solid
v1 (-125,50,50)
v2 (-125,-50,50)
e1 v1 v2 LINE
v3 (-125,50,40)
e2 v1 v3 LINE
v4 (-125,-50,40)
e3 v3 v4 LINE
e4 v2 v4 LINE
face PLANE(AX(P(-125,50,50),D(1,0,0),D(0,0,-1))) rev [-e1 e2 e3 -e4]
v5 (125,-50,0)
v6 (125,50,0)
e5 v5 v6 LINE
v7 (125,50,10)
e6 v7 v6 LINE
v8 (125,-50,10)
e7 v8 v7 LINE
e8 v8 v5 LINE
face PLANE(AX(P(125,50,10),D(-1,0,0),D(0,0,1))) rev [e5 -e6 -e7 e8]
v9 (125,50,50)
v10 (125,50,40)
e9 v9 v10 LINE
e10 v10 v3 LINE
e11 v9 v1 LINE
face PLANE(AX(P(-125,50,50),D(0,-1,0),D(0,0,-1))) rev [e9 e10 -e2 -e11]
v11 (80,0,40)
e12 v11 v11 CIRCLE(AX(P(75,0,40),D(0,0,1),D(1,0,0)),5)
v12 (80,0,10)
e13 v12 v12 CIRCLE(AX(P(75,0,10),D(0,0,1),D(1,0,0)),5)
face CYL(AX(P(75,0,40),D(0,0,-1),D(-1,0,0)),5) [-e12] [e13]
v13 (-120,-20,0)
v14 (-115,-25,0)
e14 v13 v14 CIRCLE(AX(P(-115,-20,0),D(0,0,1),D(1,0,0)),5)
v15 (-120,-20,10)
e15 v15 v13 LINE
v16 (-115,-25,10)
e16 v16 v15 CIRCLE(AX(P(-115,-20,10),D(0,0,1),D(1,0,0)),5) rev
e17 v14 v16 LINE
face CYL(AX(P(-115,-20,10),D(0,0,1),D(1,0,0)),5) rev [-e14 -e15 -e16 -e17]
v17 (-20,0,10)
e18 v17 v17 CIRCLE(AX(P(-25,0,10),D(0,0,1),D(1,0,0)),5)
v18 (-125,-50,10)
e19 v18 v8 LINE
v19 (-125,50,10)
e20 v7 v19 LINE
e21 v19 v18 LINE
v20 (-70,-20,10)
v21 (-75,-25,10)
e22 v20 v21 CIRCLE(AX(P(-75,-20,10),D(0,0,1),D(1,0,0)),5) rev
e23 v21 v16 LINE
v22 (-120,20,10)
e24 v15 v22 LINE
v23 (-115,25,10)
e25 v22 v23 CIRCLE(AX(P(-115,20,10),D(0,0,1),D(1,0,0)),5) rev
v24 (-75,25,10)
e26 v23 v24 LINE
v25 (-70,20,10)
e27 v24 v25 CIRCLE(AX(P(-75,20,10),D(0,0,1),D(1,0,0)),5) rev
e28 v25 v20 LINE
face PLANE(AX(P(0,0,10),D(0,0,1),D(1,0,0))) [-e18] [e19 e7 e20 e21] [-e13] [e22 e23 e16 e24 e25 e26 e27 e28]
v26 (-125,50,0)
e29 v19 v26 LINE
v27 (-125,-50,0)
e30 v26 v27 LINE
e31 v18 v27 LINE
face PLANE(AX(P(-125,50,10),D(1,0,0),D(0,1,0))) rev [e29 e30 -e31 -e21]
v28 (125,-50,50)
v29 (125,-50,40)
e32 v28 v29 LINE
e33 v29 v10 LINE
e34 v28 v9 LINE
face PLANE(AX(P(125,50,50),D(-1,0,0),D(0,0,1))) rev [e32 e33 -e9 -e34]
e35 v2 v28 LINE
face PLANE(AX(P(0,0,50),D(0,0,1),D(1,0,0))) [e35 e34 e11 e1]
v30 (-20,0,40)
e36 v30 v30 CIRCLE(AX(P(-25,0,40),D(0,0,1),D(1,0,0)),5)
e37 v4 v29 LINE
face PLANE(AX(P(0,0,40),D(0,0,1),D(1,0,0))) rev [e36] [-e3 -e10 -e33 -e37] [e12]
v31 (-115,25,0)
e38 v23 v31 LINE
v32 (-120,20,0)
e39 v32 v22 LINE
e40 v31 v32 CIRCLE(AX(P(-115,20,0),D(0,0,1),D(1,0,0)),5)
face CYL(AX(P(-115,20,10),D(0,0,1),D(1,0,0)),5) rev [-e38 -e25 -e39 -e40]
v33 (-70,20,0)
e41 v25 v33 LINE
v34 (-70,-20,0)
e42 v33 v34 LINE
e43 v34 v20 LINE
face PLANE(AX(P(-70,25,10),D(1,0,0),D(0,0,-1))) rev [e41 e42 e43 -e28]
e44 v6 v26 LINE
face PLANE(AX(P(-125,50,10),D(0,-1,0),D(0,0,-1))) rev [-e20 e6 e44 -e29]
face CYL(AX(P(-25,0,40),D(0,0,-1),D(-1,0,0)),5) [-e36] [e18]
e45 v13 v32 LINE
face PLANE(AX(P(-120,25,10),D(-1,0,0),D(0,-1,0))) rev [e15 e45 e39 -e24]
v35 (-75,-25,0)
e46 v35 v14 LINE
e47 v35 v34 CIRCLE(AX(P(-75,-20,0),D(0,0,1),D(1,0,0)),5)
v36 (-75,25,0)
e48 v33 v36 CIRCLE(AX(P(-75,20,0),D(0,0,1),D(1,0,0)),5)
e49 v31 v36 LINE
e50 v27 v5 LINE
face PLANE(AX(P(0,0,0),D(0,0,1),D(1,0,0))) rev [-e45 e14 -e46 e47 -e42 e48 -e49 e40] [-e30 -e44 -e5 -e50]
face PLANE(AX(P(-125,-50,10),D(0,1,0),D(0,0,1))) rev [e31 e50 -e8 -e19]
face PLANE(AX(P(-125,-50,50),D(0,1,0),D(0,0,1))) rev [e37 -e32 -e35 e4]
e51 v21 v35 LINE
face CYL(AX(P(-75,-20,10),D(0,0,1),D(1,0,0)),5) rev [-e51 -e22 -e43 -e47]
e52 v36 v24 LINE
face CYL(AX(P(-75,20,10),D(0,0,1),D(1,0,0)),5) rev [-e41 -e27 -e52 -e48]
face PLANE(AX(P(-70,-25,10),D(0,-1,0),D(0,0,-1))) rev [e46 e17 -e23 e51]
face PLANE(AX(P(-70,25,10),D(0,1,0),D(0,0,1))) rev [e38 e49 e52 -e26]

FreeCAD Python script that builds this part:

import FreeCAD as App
import Part
import Sketcher
from FreeCAD import Vector
Q = App.Units.Quantity


def edges_at(feature, points):
    """Names of the edges that pass closest to the given points."""
    edges = feature.Shape.Edges
    near = lambda p: min(range(len(edges)), key=lambda i: edges[i].distToShape(Part.Vertex(*p))[0])
    return sorted({f"Edge{near(p) + 1}" for p in points})

doc = App.newDocument("Part")
params = doc.addObject("Spreadsheet::Sheet", "Params")
for row, (alias, value) in enumerate([
    ("sketch1_width", "250 mm"),
    ("sketch1_height", "100 mm"),
    ("pad1_length", "10 mm"),
    ("sketch2_diameter", "10 mm"),
    ("pad2_length", "30 mm"),
    ("sketch3_width", "250 mm"),
    ("sketch3_height", "100 mm"),
    ("pad3_length", "10 mm"),
    ("sketch4_width", "50 mm"),
    ("pocket1_length", "10 mm"),
    ("fillet_radius", "5 mm"),
], start=1):
    params.set(f"A{row}", alias)
    params.set(f"B{row}", "=" + value)
    params.setAlias(f"B{row}", alias)

body = doc.addObject("PartDesign::Body", "Body")

# Sketch on XY plane
sketch1 = body.newObject("Sketcher::SketchObject", "Sketch")
sketch1.AttachmentSupport = (doc.getObject("XY_Plane"), [""])
sketch1.MapMode = "FlatFace"
sketch1.addGeometry([
    Part.LineSegment(Vector(-125, 50, 0), Vector(-125, -50, 0)),
    Part.LineSegment(Vector(-125, -50, 0), Vector(125, -50, 0)),
    Part.LineSegment(Vector(125, -50, 0), Vector(125, 50, 0)),
    Part.LineSegment(Vector(125, 50, 0), Vector(-125, 50, 0)),
], False)
sketch1.addConstraint([
    Sketcher.Constraint("Coincident", 0, 2, 1, 1),
    Sketcher.Constraint("Coincident", 1, 2, 2, 1),
    Sketcher.Constraint("Coincident", 2, 2, 3, 1),
    Sketcher.Constraint("Coincident", 3, 2, 0, 1),
    Sketcher.Constraint("Vertical", 0),
    Sketcher.Constraint("Horizontal", 1),
    Sketcher.Constraint("Vertical", 2),
    Sketcher.Constraint("Horizontal", 3),
    Sketcher.Constraint("Symmetric", 0, 2, 2, 2, -1, 1),
    Sketcher.Constraint("DistanceX", 1, 1, 1, 2, Q("250 mm")),
    Sketcher.Constraint("DistanceY", 0, 2, 0, 1, Q("100 mm")),
])
sketch1.setExpression("Constraints[9]", "Params.sketch1_width")
sketch1.setExpression("Constraints[10]", "Params.sketch1_height")
pad1 = body.newObject("PartDesign::Pad", "Pad")
pad1.Profile = sketch1
pad1.setExpression("Length", "Params.pad1_length")

# Sketch on XY plane
sketch2 = body.newObject("Sketcher::SketchObject", "Sketch001")
sketch2.AttachmentSupport = (doc.getObject("XY_Plane"), [""])
sketch2.MapMode = "FlatFace"
sketch2.AttachmentOffset = App.Placement(Vector(0, 0, 10), App.Rotation())
sketch2.addGeometry([
    Part.Circle(Vector(75, 0, 0), Vector(0, 0, 1), 5),
    Part.Circle(Vector(-25, 0, 0), Vector(0, 0, 1), 5),
], False)
sketch2.addConstraint([
    Sketcher.Constraint("Equal", 0, 1),
    Sketcher.Constraint("PointOnObject", 0, 3, -1),
    Sketcher.Constraint("PointOnObject", 1, 3, -1),
    Sketcher.Constraint("Diameter", 0, Q("10 mm")),
    Sketcher.Constraint("DistanceX", -1, 1, 0, 3, Q("75 mm")),
    Sketcher.Constraint("DistanceX", 1, 3, -1, 1, Q("25 mm")),
])
sketch2.setExpression("Constraints[3]", "Params.sketch2_diameter")
pad2 = body.newObject("PartDesign::Pad", "Pad001")
pad2.Profile = sketch2
pad2.setExpression("Length", "Params.pad2_length")

# Sketch on XY plane
sketch3 = body.newObject("Sketcher::SketchObject", "Sketch002")
sketch3.AttachmentSupport = (doc.getObject("XY_Plane"), [""])
sketch3.MapMode = "FlatFace"
sketch3.AttachmentOffset = App.Placement(Vector(0, 0, 40), App.Rotation())
sketch3.addGeometry([
    Part.LineSegment(Vector(-125, 50, 0), Vector(-125, -50, 0)),
    Part.LineSegment(Vector(-125, -50, 0), Vector(125, -50, 0)),
    Part.LineSegment(Vector(125, -50, 0), Vector(125, 50, 0)),
    Part.LineSegment(Vector(125, 50, 0), Vector(-125, 50, 0)),
], False)
sketch3.addConstraint([
    Sketcher.Constraint("Coincident", 0, 2, 1, 1),
    Sketcher.Constraint("Coincident", 1, 2, 2, 1),
    Sketcher.Constraint("Coincident", 2, 2, 3, 1),
    Sketcher.Constraint("Coincident", 3, 2, 0, 1),
    Sketcher.Constraint("Vertical", 0),
    Sketcher.Constraint("Horizontal", 1),
    Sketcher.Constraint("Vertical", 2),
    Sketcher.Constraint("Horizontal", 3),
    Sketcher.Constraint("Symmetric", 0, 2, 2, 2, -1, 1),
    Sketcher.Constraint("DistanceX", 1, 1, 1, 2, Q("250 mm")),
    Sketcher.Constraint("DistanceY", 0, 2, 0, 1, Q("100 mm")),
])
sketch3.setExpression("Constraints[9]", "Params.sketch3_width")
sketch3.setExpression("Constraints[10]", "Params.sketch3_height")
pad3 = body.newObject("PartDesign::Pad", "Pad002")
pad3.Profile = sketch3
pad3.setExpression("Length", "Params.pad3_length")

# Sketch on XY plane
sketch4 = body.newObject("Sketcher::SketchObject", "Sketch003")
sketch4.AttachmentSupport = (doc.getObject("XY_Plane"), [""])
sketch4.MapMode = "FlatFace"
sketch4.addGeometry([
    Part.LineSegment(Vector(-70, 25, 0), Vector(-70, -25, 0)),
    Part.LineSegment(Vector(-70, -25, 0), Vector(-120, -25, 0)),
    Part.LineSegment(Vector(-120, -25, 0), Vector(-120, 25, 0)),
    Part.LineSegment(Vector(-120, 25, 0), Vector(-70, 25, 0)),
], False)
sketch4.addConstraint([
    Sketcher.Constraint("Coincident", 0, 2, 1, 1),
    Sketcher.Constraint("Coincident", 1, 2, 2, 1),
    Sketcher.Constraint("Coincident", 2, 2, 3, 1),
    Sketcher.Constraint("Coincident", 3, 2, 0, 1),
    Sketcher.Constraint("Vertical", 0),
    Sketcher.Constraint("Horizontal", 1),
    Sketcher.Constraint("Vertical", 2),
    Sketcher.Constraint("Horizontal", 3),
    Sketcher.Constraint("Equal", 3, 0),
    Sketcher.Constraint("DistanceX", 1, 2, 1, 1, Q("50 mm")),
    Sketcher.Constraint("DistanceX", 0, 2, -1, 1, Q("70 mm")),
    Sketcher.Constraint("DistanceY", 0, 2, -1, 1, Q("25 mm")),
])
sketch4.setExpression("Constraints[9]", "Params.sketch4_width")
pocket1 = body.newObject("PartDesign::Pocket", "Pocket")
pocket1.Profile = sketch4
pocket1.setExpression("Length", "Params.pocket1_length")
pocket1.Reversed = True
doc.recompute()

fillet = body.newObject("PartDesign::Fillet", "Fillet")
fillet.Base = (pocket1, edges_at(pocket1, [
    (-120, 25, 5),
    (-120, -25, 5),
    (-70, -25, 5),
    (-70, 25, 5),
]))
fillet.setExpression("Radius", "Params.fillet_radius")

doc.recompute()
